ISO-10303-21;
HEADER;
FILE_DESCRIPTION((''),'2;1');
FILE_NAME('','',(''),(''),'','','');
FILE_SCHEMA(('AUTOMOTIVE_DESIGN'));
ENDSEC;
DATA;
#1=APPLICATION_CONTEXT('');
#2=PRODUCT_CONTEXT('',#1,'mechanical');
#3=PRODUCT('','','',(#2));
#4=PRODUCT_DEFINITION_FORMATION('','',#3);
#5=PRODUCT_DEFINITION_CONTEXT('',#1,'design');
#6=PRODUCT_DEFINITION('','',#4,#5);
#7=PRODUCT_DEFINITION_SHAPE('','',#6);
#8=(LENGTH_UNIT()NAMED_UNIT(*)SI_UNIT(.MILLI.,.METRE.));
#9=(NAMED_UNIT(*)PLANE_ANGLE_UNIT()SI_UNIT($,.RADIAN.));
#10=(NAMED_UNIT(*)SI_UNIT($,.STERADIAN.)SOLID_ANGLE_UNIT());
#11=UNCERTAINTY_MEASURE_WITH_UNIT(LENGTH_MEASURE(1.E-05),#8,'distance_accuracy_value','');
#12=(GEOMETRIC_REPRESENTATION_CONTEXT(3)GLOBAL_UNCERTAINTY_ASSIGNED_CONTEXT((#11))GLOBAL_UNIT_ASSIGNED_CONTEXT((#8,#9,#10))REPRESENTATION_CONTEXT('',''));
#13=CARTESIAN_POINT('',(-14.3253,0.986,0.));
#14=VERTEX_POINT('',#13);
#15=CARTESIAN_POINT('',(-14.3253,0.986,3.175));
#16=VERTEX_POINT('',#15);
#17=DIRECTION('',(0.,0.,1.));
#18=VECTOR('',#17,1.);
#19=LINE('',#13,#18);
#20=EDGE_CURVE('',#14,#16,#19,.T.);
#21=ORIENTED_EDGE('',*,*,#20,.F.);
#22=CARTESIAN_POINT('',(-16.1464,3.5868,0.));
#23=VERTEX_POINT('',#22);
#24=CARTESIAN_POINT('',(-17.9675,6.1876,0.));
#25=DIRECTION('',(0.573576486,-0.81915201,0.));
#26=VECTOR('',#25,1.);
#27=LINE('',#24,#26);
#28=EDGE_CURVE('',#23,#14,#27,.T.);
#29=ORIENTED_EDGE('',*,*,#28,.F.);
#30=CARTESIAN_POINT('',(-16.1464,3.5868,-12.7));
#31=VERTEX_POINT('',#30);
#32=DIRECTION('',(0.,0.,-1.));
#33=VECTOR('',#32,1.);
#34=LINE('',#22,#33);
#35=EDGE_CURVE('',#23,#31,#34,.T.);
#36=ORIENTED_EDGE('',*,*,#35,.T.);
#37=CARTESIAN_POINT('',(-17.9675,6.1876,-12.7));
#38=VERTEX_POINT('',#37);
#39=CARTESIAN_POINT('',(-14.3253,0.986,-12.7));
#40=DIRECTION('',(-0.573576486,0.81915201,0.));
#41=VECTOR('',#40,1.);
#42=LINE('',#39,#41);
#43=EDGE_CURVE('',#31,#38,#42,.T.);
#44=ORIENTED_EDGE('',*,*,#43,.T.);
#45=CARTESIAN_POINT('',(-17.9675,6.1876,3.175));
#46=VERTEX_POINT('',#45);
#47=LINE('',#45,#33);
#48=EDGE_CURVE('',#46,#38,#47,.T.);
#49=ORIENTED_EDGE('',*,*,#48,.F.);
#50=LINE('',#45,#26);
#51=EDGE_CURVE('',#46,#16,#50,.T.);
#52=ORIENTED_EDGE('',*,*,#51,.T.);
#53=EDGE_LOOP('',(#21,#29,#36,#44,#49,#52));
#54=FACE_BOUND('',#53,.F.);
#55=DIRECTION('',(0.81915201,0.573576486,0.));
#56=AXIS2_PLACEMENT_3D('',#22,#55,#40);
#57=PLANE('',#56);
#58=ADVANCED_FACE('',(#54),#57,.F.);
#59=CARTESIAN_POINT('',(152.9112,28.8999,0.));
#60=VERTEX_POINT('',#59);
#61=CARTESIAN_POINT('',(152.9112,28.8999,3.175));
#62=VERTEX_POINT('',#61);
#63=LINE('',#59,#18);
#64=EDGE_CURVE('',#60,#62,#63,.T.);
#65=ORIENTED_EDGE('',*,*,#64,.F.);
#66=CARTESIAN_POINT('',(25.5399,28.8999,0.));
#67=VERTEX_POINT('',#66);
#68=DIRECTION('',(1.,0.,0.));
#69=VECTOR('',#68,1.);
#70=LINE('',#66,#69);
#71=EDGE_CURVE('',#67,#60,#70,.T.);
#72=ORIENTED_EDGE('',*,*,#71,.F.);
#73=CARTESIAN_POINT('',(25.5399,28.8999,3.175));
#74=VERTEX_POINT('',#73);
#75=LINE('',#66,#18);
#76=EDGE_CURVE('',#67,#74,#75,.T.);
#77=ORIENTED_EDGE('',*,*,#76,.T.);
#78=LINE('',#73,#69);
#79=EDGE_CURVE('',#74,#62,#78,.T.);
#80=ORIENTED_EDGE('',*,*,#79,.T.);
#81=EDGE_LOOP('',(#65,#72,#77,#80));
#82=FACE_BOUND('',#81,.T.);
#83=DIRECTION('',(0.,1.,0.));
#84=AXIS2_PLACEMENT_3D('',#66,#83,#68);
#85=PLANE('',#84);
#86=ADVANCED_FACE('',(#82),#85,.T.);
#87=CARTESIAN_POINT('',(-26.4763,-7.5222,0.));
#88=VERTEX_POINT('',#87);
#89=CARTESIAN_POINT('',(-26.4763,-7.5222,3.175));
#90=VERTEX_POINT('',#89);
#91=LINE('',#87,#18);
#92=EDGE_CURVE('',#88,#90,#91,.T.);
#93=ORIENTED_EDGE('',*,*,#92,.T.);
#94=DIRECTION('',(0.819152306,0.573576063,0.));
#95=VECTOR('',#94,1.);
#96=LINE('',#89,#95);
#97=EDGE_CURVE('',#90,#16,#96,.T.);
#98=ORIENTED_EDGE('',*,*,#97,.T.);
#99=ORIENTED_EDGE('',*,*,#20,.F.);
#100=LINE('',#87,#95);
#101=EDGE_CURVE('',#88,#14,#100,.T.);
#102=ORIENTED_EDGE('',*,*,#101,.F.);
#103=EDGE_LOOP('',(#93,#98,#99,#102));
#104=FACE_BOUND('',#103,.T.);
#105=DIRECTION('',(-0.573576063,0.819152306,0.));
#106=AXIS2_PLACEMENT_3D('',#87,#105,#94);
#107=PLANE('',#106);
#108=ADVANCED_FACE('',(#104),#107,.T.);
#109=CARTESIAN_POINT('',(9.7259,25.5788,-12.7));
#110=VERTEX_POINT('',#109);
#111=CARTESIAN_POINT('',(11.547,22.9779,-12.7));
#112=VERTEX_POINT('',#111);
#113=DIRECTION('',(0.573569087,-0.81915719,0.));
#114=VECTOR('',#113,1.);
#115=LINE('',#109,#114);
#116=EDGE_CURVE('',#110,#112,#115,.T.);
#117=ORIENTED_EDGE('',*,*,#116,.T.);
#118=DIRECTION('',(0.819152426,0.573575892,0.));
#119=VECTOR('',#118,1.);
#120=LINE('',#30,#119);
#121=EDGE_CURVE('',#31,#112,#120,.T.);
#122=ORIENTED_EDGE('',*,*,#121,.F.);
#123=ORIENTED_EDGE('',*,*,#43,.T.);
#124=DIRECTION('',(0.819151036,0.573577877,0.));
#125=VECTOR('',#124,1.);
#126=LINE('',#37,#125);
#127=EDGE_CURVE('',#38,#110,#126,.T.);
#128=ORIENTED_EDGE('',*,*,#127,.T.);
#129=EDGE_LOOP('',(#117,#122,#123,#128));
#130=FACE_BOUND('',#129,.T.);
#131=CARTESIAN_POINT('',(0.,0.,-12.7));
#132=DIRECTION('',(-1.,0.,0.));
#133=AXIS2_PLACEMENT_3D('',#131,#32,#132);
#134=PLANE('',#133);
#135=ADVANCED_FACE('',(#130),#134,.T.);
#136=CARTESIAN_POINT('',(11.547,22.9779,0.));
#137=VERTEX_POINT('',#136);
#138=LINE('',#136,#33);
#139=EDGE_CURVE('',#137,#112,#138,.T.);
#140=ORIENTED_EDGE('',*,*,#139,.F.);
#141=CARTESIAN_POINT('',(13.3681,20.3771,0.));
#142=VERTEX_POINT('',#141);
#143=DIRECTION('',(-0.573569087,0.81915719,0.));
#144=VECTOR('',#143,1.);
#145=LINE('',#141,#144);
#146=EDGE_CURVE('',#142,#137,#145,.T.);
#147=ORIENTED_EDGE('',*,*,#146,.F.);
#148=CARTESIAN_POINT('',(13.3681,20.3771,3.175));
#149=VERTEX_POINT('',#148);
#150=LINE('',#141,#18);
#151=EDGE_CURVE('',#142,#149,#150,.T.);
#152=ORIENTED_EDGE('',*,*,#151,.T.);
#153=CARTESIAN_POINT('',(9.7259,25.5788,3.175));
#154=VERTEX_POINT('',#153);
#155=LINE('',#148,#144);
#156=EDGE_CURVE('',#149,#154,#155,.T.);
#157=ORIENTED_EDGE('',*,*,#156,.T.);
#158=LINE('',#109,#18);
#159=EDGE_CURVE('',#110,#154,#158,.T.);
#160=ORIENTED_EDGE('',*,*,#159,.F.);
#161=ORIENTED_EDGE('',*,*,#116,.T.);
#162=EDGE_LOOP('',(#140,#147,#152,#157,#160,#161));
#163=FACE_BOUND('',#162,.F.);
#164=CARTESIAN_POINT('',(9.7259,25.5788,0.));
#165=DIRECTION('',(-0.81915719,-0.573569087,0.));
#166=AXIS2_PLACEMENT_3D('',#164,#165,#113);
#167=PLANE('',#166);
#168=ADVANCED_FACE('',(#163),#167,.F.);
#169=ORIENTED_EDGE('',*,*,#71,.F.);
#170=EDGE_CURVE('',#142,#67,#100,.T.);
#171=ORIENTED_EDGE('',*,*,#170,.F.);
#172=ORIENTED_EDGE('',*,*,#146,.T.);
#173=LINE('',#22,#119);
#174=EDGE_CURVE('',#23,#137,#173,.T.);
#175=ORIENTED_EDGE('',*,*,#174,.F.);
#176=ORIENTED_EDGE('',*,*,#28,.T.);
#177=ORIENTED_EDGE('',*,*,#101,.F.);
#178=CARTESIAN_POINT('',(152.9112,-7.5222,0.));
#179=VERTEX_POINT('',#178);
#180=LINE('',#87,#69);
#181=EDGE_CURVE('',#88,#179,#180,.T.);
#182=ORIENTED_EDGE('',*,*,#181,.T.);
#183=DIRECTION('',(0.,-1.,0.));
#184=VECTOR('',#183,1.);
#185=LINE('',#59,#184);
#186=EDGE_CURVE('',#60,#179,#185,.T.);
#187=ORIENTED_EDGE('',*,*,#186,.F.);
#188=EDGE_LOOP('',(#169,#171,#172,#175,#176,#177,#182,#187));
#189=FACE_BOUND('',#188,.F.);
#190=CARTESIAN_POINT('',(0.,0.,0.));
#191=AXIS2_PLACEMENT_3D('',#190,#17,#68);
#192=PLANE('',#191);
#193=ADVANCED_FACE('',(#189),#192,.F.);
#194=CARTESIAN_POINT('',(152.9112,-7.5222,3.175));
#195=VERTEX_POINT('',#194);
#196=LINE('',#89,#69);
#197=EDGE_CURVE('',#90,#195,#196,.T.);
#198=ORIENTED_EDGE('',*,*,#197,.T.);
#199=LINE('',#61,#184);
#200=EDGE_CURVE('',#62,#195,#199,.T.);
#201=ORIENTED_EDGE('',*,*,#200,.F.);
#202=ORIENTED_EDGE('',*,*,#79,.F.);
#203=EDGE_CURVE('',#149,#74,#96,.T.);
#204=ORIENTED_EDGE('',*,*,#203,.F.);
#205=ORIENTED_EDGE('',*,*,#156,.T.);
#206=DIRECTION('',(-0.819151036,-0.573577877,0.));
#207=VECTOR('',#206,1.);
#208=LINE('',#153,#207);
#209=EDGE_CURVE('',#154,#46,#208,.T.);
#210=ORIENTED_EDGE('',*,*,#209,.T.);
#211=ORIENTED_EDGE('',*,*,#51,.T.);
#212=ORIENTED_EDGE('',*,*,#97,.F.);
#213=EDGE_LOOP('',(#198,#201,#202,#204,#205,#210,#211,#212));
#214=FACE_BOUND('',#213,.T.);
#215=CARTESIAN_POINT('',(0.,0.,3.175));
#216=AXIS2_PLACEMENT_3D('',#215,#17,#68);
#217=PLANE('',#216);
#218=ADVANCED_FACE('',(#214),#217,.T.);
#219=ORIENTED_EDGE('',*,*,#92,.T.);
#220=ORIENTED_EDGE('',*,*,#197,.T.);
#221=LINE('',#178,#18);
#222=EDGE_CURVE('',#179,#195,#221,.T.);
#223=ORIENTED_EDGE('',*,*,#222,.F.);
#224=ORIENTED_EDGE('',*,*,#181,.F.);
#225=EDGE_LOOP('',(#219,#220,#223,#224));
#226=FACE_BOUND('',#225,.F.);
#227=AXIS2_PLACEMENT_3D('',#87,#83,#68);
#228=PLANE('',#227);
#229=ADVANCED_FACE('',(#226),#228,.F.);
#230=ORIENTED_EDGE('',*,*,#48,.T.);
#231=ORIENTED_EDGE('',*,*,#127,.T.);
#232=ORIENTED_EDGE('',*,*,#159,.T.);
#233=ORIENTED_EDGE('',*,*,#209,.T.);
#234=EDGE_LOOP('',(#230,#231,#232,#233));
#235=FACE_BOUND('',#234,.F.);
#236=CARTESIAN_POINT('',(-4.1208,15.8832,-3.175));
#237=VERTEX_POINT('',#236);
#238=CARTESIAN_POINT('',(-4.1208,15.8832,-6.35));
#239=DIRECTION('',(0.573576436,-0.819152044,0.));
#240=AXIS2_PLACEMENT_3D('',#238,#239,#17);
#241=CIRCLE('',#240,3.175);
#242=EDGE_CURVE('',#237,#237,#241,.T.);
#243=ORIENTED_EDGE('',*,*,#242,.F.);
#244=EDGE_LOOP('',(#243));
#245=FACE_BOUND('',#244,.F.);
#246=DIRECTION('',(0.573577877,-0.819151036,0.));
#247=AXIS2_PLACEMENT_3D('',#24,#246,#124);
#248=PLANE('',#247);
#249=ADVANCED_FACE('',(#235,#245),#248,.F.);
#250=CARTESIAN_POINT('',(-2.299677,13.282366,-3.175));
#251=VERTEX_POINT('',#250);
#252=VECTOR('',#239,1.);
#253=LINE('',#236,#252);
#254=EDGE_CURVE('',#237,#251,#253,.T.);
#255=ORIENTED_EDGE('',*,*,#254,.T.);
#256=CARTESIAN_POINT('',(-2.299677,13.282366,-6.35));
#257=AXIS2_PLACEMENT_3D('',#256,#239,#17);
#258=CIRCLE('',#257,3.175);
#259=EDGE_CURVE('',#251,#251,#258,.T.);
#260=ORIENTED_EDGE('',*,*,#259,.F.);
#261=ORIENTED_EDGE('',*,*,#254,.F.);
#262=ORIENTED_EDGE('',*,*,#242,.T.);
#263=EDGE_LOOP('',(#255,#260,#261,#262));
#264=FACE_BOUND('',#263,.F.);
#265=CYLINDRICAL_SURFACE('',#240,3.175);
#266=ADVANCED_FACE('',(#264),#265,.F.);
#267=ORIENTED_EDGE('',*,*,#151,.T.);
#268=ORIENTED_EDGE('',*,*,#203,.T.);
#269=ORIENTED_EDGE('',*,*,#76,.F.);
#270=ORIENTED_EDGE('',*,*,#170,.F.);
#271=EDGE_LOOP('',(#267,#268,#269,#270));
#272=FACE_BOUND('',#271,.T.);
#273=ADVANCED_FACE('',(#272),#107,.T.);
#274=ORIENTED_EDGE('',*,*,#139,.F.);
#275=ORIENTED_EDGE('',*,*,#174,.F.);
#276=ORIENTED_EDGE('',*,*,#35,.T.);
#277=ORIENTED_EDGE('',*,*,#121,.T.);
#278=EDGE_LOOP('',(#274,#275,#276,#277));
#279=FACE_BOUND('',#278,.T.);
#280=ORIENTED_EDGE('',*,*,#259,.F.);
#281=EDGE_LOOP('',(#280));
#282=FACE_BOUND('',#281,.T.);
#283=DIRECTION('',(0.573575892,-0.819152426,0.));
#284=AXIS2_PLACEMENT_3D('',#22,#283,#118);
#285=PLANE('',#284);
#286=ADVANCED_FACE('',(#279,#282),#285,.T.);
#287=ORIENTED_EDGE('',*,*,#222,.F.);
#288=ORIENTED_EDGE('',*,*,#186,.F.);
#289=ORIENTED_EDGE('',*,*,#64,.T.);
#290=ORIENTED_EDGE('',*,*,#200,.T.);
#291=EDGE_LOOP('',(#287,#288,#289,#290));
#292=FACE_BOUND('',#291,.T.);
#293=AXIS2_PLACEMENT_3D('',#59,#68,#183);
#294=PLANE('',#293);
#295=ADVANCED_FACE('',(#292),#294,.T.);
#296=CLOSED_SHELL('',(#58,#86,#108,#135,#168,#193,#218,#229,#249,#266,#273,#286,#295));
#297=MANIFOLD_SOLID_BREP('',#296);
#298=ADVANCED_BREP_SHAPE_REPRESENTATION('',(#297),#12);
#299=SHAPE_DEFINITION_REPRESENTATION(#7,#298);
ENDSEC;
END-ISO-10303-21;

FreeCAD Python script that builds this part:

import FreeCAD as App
import Part
import Sketcher
from FreeCAD import Vector
Q = App.Units.Quantity


def add_polygon(sketch, points):
    """Adds a closed chain of lines whose ends are joined by coincident constraints."""
    first, n = sketch.GeometryCount, len(points)
    for a, b in zip(points, points[1:] + points[:1]):
        sketch.addGeometry(Part.LineSegment(App.Vector(*a, 0), App.Vector(*b, 0)), False)
    for i in range(n):
        sketch.addConstraint(Sketcher.Constraint("Coincident", first + i, 2, first + (i + 1) % n, 1))

doc = App.newDocument("Part")
body = doc.addObject("PartDesign::Body", "Body")

sketch1 = doc.addObject("Sketcher::SketchObject", "Sketch")
body.addObject(sketch1)
sketch1.AttachmentSupport = (doc.XY_Plane, [""])
sketch1.MapMode = "FlatFace"
add_polygon(sketch1, [(26, 29), (-26, -8), (153, -8), (153, 29)])
sketch1.addConstraint(Sketcher.Constraint("Horizontal", 1))
sketch1.addConstraint(Sketcher.Constraint("Vertical", 2))
sketch1.addConstraint(Sketcher.Constraint("Horizontal", 3))
sketch1.addConstraint(Sketcher.Constraint("Distance", 0, Q("2.5 in")))
sketch1.addConstraint(Sketcher.Constraint("DistanceX", 1, 1, 1, 2, Q("7.0625 in")))
sketch1.addConstraint(Sketcher.Constraint("Angle", 0, Q("-145 deg")))
sketch1.addConstraint(Sketcher.Constraint("DistanceY", -1, 1, 2, 2, Q("1.1378 in")))
sketch1.addConstraint(Sketcher.Constraint("DistanceX", -1, 1, 3, 2, Q("1.0055 in")))
pad1 = doc.addObject("PartDesign::Pad", "Pad")
body.addObject(pad1)
pad1.Profile = sketch1
pad1.Length = Q("0.125 in")

sketch2 = doc.addObject("Sketcher::SketchObject", "Sketch001")
body.addObject(sketch2)
sketch2.AttachmentSupport = (doc.XY_Plane, [""])
sketch2.MapMode = "FlatFace"
add_polygon(sketch2, [(10, 26), (13, 20), (-14, 1), (-18, 6)])
sketch2.addConstraint(Sketcher.Constraint("Perpendicular", 0, 1))
sketch2.addConstraint(Sketcher.Constraint("Perpendicular", 1, 2))
sketch2.addConstraint(Sketcher.Constraint("Perpendicular", 2, 3))
sketch2.addConstraint(Sketcher.Constraint("Distance", 0, Q("0.25 in")))
sketch2.addConstraint(Sketcher.Constraint("Distance", 1, Q("1.331 in")))
sketch2.addConstraint(Sketcher.Constraint("Angle", 0, Q("-55.0005 deg")))
sketch2.addConstraint(Sketcher.Constraint("DistanceX", 1, 2, -1, 1, Q("0.564 in")))
sketch2.addConstraint(Sketcher.Constraint("DistanceY", -1, 1, 2, 2, Q("0.2436 in")))
pad2 = doc.addObject("PartDesign::Pad", "Pad001")
body.addObject(pad2)
pad2.Profile = sketch2
pad2.Length = Q("0.125 in")

sketch3 = doc.addObject("Sketcher::SketchObject", "Sketch002")
body.addObject(sketch3)
sketch3.AttachmentSupport = (doc.XY_Plane, [""])
sketch3.MapMode = "FlatFace"
add_polygon(sketch3, [(11.5, 23), (-16.1, 3.6), (-18, 6.2), (9.7, 25.6)])
sketch3.addConstraint(Sketcher.Constraint("Perpendicular", 0, 1))
sketch3.addConstraint(Sketcher.Constraint("Perpendicular", 1, 2))
sketch3.addConstraint(Sketcher.Constraint("Perpendicular", 2, 3))
sketch3.addConstraint(Sketcher.Constraint("Distance", 1, Q("0.125 in")))
sketch3.addConstraint(Sketcher.Constraint("Angle", 0, Q("-145 deg")))
sketch3.addConstraint(Sketcher.Constraint("Distance", 0, Q("1.331 in")))
sketch3.addConstraint(Sketcher.Constraint("DistanceY", -1, 1, 1, 2, Q("0.2436 in")))
sketch3.addConstraint(Sketcher.Constraint("DistanceX", -1, 1, 2, 2, Q("0.3829 in")))
pad3 = doc.addObject("PartDesign::Pad", "Pad002")
body.addObject(pad3)
pad3.Profile = sketch3
pad3.Length = Q("0.5 in")
pad3.Reversed = True

sketch4 = doc.addObject("Sketcher::SketchObject", "Sketch003")
body.addObject(sketch4)
sketch4.Placement = App.Placement(Vector(-8.818365, 12.59393, 0), App.Rotation(Vector(-0.819152044, -0.573576436, 0), Vector(0, 0, 0.999999999), Vector(-0.573576436, 0.819152044, 0), "ZXY"))
sketch4.addGeometry(Part.Circle(Vector(-5.7, -6.3, 0), Vector(0, 0, 1), 3.2), False)
sketch4.addConstraint(Sketcher.Constraint("Diameter", 0, Q("0.25 in")))
sketch4.addConstraint(Sketcher.Constraint("DistanceY", 0, 3, -1, 1, Q("0.25 in")))
sketch4.addConstraint(Sketcher.Constraint("DistanceX", 0, 3, -1, 1, Q("5.7347 mm")))
doc.recompute()
hole = doc.addObject("PartDesign::Hole", "Hole")
body.addObject(hole)
hole.Profile = sketch4
hole.ThreadType = "None"
hole.Diameter = Q("0.25 in")
hole.DepthType = "ThroughAll"

doc.recompute()
